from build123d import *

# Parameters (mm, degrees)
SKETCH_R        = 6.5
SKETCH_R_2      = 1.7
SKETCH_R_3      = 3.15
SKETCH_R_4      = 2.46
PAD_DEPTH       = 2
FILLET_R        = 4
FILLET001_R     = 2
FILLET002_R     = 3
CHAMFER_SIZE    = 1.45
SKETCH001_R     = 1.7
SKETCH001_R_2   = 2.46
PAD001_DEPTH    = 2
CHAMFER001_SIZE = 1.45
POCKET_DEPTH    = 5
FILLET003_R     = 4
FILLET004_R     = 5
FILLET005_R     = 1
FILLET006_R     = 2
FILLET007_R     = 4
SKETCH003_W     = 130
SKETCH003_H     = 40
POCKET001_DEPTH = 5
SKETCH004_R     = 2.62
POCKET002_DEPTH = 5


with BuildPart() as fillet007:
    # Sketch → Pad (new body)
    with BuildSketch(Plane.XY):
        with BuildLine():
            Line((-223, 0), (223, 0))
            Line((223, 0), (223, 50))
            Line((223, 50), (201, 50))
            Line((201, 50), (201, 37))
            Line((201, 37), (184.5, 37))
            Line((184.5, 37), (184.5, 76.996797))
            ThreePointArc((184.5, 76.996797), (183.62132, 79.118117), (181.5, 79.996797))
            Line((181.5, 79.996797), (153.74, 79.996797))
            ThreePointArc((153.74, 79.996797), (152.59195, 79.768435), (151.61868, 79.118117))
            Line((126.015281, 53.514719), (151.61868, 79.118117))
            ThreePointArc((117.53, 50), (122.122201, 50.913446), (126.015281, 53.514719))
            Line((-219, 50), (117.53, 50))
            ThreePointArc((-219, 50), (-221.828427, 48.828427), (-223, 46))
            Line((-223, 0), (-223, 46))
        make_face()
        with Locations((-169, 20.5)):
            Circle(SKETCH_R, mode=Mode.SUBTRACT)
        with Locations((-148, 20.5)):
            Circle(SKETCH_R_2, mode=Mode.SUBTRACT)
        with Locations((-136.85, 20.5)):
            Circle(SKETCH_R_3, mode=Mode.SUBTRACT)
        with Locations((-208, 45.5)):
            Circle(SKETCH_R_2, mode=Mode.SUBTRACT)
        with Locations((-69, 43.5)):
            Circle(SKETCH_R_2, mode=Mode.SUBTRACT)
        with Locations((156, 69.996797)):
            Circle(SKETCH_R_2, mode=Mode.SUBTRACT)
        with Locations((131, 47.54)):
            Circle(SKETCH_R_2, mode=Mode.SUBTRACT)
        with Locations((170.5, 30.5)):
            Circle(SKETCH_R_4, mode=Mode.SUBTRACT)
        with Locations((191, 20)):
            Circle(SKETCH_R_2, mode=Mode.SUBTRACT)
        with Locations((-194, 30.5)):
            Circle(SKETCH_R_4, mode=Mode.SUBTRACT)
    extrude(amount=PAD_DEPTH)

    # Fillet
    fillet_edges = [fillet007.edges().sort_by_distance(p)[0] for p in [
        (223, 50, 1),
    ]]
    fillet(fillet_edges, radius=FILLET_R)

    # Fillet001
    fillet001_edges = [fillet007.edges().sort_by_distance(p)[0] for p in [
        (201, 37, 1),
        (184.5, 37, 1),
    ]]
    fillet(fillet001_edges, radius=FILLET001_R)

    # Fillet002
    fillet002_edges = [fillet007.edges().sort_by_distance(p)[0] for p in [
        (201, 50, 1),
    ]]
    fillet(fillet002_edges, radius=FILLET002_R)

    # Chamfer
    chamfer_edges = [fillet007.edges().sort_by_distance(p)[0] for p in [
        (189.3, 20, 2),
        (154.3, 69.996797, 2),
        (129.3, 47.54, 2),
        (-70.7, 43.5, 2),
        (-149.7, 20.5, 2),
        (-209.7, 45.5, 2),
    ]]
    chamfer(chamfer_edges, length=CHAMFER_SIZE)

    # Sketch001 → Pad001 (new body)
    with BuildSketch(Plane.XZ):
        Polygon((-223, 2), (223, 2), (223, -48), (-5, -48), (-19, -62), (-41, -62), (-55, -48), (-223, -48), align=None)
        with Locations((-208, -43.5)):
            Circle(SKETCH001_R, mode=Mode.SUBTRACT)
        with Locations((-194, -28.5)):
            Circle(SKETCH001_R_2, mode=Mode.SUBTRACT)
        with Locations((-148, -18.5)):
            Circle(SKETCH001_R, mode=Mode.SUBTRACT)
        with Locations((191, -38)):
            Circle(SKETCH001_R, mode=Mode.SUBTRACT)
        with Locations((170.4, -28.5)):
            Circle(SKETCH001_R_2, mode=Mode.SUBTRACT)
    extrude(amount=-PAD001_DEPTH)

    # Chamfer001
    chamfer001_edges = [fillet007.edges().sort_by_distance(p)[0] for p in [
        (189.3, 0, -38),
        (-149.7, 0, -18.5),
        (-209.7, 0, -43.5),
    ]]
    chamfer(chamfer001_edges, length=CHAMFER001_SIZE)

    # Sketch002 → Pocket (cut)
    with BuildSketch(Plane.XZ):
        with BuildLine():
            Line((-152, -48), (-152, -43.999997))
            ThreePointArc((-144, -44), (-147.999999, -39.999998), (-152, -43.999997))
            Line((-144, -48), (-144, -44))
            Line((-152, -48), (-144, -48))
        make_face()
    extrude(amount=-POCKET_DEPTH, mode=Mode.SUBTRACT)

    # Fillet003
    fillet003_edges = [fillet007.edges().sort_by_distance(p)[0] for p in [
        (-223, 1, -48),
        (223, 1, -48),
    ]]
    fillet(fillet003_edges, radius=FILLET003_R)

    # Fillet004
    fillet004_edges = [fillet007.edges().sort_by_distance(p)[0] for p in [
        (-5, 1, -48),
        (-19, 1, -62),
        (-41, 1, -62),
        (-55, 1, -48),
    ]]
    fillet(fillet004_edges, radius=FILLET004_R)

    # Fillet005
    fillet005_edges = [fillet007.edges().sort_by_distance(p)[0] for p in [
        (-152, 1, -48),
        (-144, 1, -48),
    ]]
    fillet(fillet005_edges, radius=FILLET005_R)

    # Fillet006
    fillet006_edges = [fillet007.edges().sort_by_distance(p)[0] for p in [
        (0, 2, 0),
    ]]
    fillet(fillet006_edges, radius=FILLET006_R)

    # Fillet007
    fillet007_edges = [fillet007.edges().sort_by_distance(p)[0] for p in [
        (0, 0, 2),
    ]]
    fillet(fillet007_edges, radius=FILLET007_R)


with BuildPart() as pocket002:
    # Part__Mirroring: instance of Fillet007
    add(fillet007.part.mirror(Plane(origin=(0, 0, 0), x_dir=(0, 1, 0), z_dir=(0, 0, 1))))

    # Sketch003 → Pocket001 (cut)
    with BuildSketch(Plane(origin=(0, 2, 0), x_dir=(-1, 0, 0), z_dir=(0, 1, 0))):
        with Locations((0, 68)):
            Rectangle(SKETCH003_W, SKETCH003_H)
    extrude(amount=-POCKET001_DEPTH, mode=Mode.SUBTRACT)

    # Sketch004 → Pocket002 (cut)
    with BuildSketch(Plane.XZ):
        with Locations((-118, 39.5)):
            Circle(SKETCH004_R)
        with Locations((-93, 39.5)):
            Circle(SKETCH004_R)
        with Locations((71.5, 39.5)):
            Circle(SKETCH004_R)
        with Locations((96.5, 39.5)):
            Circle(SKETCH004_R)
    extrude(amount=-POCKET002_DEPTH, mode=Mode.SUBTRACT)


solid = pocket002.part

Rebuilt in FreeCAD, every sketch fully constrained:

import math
import FreeCAD as App
import Part
import Sketcher

V = App.Vector
Q = App.Units.Quantity


def edges_at(feature, points):
    """Names of the edges that pass closest to the given points."""
    edges = feature.Shape.Edges
    near = lambda p: min(range(len(edges)), key=lambda i: edges[i].distToShape(Part.Vertex(*p))[0])
    return sorted({f"Edge{near(p) + 1}" for p in points})


def add_polygon(sketch, points):
    """Adds a closed chain of lines whose ends are joined by coincident constraints."""
    first, n = sketch.GeometryCount, len(points)
    for a, b in zip(points, points[1:] + points[:1]):
        sketch.addGeometry(Part.LineSegment(App.Vector(*a, 0), App.Vector(*b, 0)), False)
    for i in range(n):
        sketch.addConstraint(Sketcher.Constraint("Coincident", first + i, 2, first + (i + 1) % n, 1))

doc = App.newDocument("Part")
params = doc.addObject("Spreadsheet::Sheet", "Params")
for row, (alias, value) in enumerate([
    ("sketch1_diameter", "13 mm"),
    ("sketch1_radius", "3.000001 mm"),
    ("sketch1_radius2", "12.000002 mm"),
    ("sketch1_radius3", "4 mm"),
    ("sketch1_diameter2", "3.4 mm"),
    ("pad1_length", "2 mm"),
    ("fillet_radius", "4 mm"),
    ("fillet2_radius", "2 mm"),
    ("fillet3_radius", "3 mm"),
    ("chamfer_size", "1.45 mm"),
    ("sketch2_diameter", "3.4 mm"),
    ("sketch2_diameter2", "4.92 mm"),
    ("sketch2_width", "446 mm"),
    ("sketch2_width2", "168 mm"),
    ("sketch2_width3", "22 mm"),
    ("pad2_length", "2 mm"),
    ("chamfer2_size", "1.45 mm"),
    ("sketch3_radius", "4 mm"),
    ("sketch3_height", "4 mm"),
    ("pocket1_length", "5 mm"),
    ("fillet4_radius", "4 mm"),
    ("fillet5_radius", "5 mm"),
    ("fillet6_radius", "1 mm"),
    ("fillet7_radius", "2 mm"),
    ("fillet8_radius", "4 mm"),
    ("sketch4_width", "130 mm"),
    ("sketch4_height", "40 mm"),
    ("pocket2_length", "5 mm"),
    ("sketch5_diameter", "5.24 mm"),
    ("pocket3_length", "5 mm"),
], start=1):
    params.set(f"A{row}", alias)
    params.set(f"B{row}", "=" + value)
    params.setAlias(f"B{row}", alias)

body = doc.addObject("PartDesign::Body", "Body")

# Sketch on XY plane
sketch1 = body.newObject("Sketcher::SketchObject", "Sketch")
sketch1.AttachmentSupport = (doc.getObject("XY_Plane"), [""])
sketch1.MapMode = "FlatFace"
sketch1.addGeometry(Part.LineSegment(V(-223, 0, 0), V(223, 0, 0)), False)
sketch1.addGeometry(Part.LineSegment(V(223, 0, 0), V(223, 50, 0)), False)
sketch1.addGeometry(Part.LineSegment(V(223, 50, 0), V(201, 50, 0)), False)
sketch1.addGeometry(Part.LineSegment(V(201, 50, 0), V(201, 37, 0)), False)
sketch1.addGeometry(Part.LineSegment(V(201, 37, 0), V(184.5, 37, 0)), False)
sketch1.addGeometry(Part.LineSegment(V(184.5, 37, 0), V(184.5, 77, 0)), False)
sketch1.addGeometry(Part.ArcOfCircle(Part.Circle(V(181.5, 77, 0), V(0, 0, 1), 3), math.radians(0), math.radians(90)), False)
sketch1.addGeometry(Part.LineSegment(V(181.5, 80, 0), V(153.7, 80, 0)), False)
sketch1.addGeometry(Part.ArcOfCircle(Part.Circle(V(153.7, 77, 0), V(0, 0, 1), 3), math.radians(90), math.radians(135)), False)
sketch1.addGeometry(Part.LineSegment(V(151.6, 79.1, 0), V(126, 53.5, 0)), False)
sketch1.addGeometry(Part.ArcOfCircle(Part.Circle(V(117.5, 62, 0), V(0, 0, 1), 12), math.radians(-90), math.radians(-45)), False)
sketch1.addGeometry(Part.LineSegment(V(117.5, 50, 0), V(-219, 50, 0)), False)
sketch1.addGeometry(Part.ArcOfCircle(Part.Circle(V(-219, 46, 0), V(0, 0, 1), 4), math.radians(90), math.radians(180)), False)
sketch1.addGeometry(Part.LineSegment(V(-223, 46, 0), V(-223, 0, 0)), False)
sketch1.addGeometry(Part.Circle(V(-169, 20.5, 0), V(0, 0, 1), 6.5), False)
sketch1.addGeometry(Part.Circle(V(-148, 20.5, 0), V(0, 0, 1), 1.7), False)
sketch1.addGeometry(Part.Circle(V(-136.8, 20.5, 0), V(0, 0, 1), 3.1), False)
sketch1.addGeometry(Part.Circle(V(-194, 30.5, 0), V(0, 0, 1), 2.5), False)
sketch1.addGeometry(Part.Circle(V(191, 20, 0), V(0, 0, 1), 1.7), False)
sketch1.addGeometry(Part.Circle(V(170.5, 30.5, 0), V(0, 0, 1), 2.5), False)
sketch1.addGeometry(Part.Circle(V(-208, 45.5, 0), V(0, 0, 1), 1.7), False)
sketch1.addGeometry(Part.Circle(V(-69, 43.5, 0), V(0, 0, 1), 1.7), False)
sketch1.addGeometry(Part.Circle(V(131, 47.5, 0), V(0, 0, 1), 1.7), False)
sketch1.addGeometry(Part.Circle(V(156, 70, 0), V(0, 0, 1), 1.7), False)
sketch1.addConstraint(Sketcher.Constraint("Coincident", 0, 2, 1, 1))
sketch1.addConstraint(Sketcher.Constraint("Coincident", 1, 2, 2, 1))
sketch1.addConstraint(Sketcher.Constraint("Coincident", 2, 2, 3, 1))
sketch1.addConstraint(Sketcher.Constraint("Coincident", 3, 2, 4, 1))
sketch1.addConstraint(Sketcher.Constraint("Coincident", 4, 2, 5, 1))
sketch1.addConstraint(Sketcher.Constraint("Tangent", 5, 2, 6, 1))
sketch1.addConstraint(Sketcher.Constraint("Tangent", 6, 2, 7, 1))
sketch1.addConstraint(Sketcher.Constraint("Tangent", 7, 2, 8, 1))
sketch1.addConstraint(Sketcher.Constraint("Tangent", 8, 2, 9, 1))
sketch1.addConstraint(Sketcher.Constraint("Tangent", 9, 2, 10, 2))
sketch1.addConstraint(Sketcher.Constraint("Tangent", 10, 1, 11, 1))
sketch1.addConstraint(Sketcher.Constraint("Tangent", 11, 2, 12, 1))
sketch1.addConstraint(Sketcher.Constraint("Tangent", 12, 2, 13, 1))
sketch1.addConstraint(Sketcher.Constraint("Coincident", 13, 2, 0, 1))
sketch1.addConstraint(Sketcher.Constraint("Horizontal", 0))
sketch1.addConstraint(Sketcher.Constraint("Vertical", 1))
sketch1.addConstraint(Sketcher.Constraint("Horizontal", 2))
sketch1.addConstraint(Sketcher.Constraint("Vertical", 3))
sketch1.addConstraint(Sketcher.Constraint("Horizontal", 4))
sketch1.addConstraint(Sketcher.Constraint("Vertical", 5))
sketch1.addConstraint(Sketcher.Constraint("Horizontal", 7))
sketch1.addConstraint(Sketcher.Constraint("Horizontal", 11))
sketch1.addConstraint(Sketcher.Constraint("Vertical", 13))
sketch1.addConstraint(Sketcher.Constraint("Equal", 15, 18))
sketch1.addConstraint(Sketcher.Constraint("Equal", 17, 19))
sketch1.addConstraint(Sketcher.Constraint("Equal", 18, 20))
sketch1.addConstraint(Sketcher.Constraint("Equal", 20, 21))
sketch1.addConstraint(Sketcher.Constraint("Equal", 21, 22))
sketch1.addConstraint(Sketcher.Constraint("Equal", 22, 23))
sketch1.addConstraint(Sketcher.Constraint("Symmetric", 0, 2, 13, 2, -1, 1))
sketch1.addConstraint(Sketcher.Constraint("Horizontal", 14, 3, 15, 3))
sketch1.addConstraint(Sketcher.Constraint("Horizontal", 15, 3, 16, 3))
sketch1.addConstraint(Sketcher.Constraint("Horizontal", 17, 3, 19, 3))
sketch1.addConstraint(Sketcher.Constraint("Horizontal", 2, 2, 10, 1))
sketch1.addConstraint(Sketcher.Constraint("Diameter", 14, Q("13 mm")))
sketch1.addConstraint(Sketcher.Constraint("Radius", 6, Q("3.000001 mm")))
sketch1.addConstraint(Sketcher.Constraint("Radius", 10, Q("12.000002 mm")))
sketch1.addConstraint(Sketcher.Constraint("Radius", 12, Q("4 mm")))
sketch1.addConstraint(Sketcher.Constraint("Diameter", 15, Q("3.4 mm")))
sketch1.addConstraint(Sketcher.Constraint("Diameter", 16, Q("6.3 mm")))
sketch1.addConstraint(Sketcher.Constraint("Diameter", 17, Q("4.92 mm")))
sketch1.addConstraint(Sketcher.Constraint("DistanceX", 0, 1, 0, 2, Q("446 mm")))
sketch1.addConstraint(Sketcher.Constraint("DistanceX", 2, 2, 2, 1, Q("22 mm")))
sketch1.addConstraint(Sketcher.Constraint("DistanceY", 1, 1, 1, 2, Q("50 mm")))
sketch1.addConstraint(Sketcher.Constraint("DistanceY", 3, 2, 3, 1, Q("13 mm")))
sketch1.addConstraint(Sketcher.Constraint("Angle", 9, Q("-135.000001 deg")))
sketch1.addConstraint(Sketcher.Constraint("DistanceX", 4, 2, 4, 1, Q("16.5 mm")))
sketch1.addConstraint(Sketcher.Constraint("DistanceX", 14, 3, -1, 1, Q("169 mm")))
sketch1.addConstraint(Sketcher.Constraint("DistanceX", 15, 3, -1, 1, Q("148 mm")))
sketch1.addConstraint(Sketcher.Constraint("DistanceX", 17, 3, -1, 1, Q("194 mm")))
sketch1.addConstraint(Sketcher.Constraint("DistanceX", -1, 1, 18, 3, Q("191 mm")))
sketch1.addConstraint(Sketcher.Constraint("DistanceY", -1, 1, 18, 3, Q("20 mm")))
sketch1.addConstraint(Sketcher.Constraint("DistanceX", 20, 3, -1, 1, Q("208 mm")))
sketch1.addConstraint(Sketcher.Constraint("DistanceX", 21, 3, -1, 1, Q("69 mm")))
sketch1.addConstraint(Sketcher.Constraint("DistanceX", -1, 1, 22, 3, Q("131 mm")))
sketch1.addConstraint(Sketcher.Constraint("DistanceX", -1, 1, 23, 3, Q("156 mm")))
sketch1.addConstraint(Sketcher.Constraint("DistanceY", 14, 3, 17, 3, Q("10 mm")))
sketch1.addConstraint(Sketcher.Constraint("DistanceX", 19, 3, 6, 3, Q("10.999999 mm")))
sketch1.addConstraint(Sketcher.Constraint("DistanceY", 17, 3, 20, 3, Q("15 mm")))
sketch1.addConstraint(Sketcher.Constraint("DistanceY", 16, 3, 21, 3, Q("23 mm")))
sketch1.addConstraint(Sketcher.Constraint("DistanceY", 23, 3, 6, 3, Q("6.999999 mm")))
sketch1.addConstraint(Sketcher.Constraint("DistanceX", 7, 2, 7, 1, Q("27.76 mm")))
sketch1.addConstraint(Sketcher.Constraint("DistanceX", 11, 2, 11, 1, Q("336.53 mm")))
sketch1.addConstraint(Sketcher.Constraint("DistanceY", -1, 1, 14, 3, Q("20.5 mm")))
sketch1.addConstraint(Sketcher.Constraint("DistanceX", 16, 3, -1, 1, Q("136.85 mm")))
sketch1.addConstraint(Sketcher.Constraint("DistanceY", -1, 1, 22, 3, Q("47.54 mm")))
sketch1.addConstraint(Sketcher.Constraint("Radius", 8, Q("3.000005 mm")))
sketch1.setExpression("Constraints[34]", "Params.sketch1_diameter")
sketch1.setExpression("Constraints[35]", "Params.sketch1_radius")
sketch1.setExpression("Constraints[36]", "Params.sketch1_radius2")
sketch1.setExpression("Constraints[37]", "Params.sketch1_radius3")
sketch1.setExpression("Constraints[38]", "Params.sketch1_diameter2")
pad1 = body.newObject("PartDesign::Pad", "Pad")
pad1.Profile = sketch1
pad1.setExpression("Length", "Params.pad1_length")
doc.recompute()

fillet = body.newObject("PartDesign::Fillet", "Fillet")
fillet.Base = (pad1, edges_at(pad1, [(223, 50, 1)]))
fillet.setExpression("Radius", "Params.fillet_radius")
doc.recompute()

fillet2 = body.newObject("PartDesign::Fillet", "Fillet001")
fillet2.Base = (fillet, edges_at(fillet, [(201, 37, 1), (184.5, 37, 1)]))
fillet2.setExpression("Radius", "Params.fillet2_radius")
doc.recompute()

fillet3 = body.newObject("PartDesign::Fillet", "Fillet002")
fillet3.Base = (fillet2, edges_at(fillet2, [(201, 50, 1)]))
fillet3.setExpression("Radius", "Params.fillet3_radius")
doc.recompute()

chamfer = body.newObject("PartDesign::Chamfer", "Chamfer")
chamfer.Base = (fillet3, edges_at(fillet3, [
    (189.3, 20, 2),
    (154.3, 69.997, 2),
    (129.3, 47.54, 2),
    (-70.7, 43.5, 2),
    (-149.7, 20.5, 2),
    (-209.7, 45.5, 2),
]))
chamfer.setExpression("Size", "Params.chamfer_size")

# Sketch on XZ plane
sketch2 = body.newObject("Sketcher::SketchObject", "Sketch001")
sketch2.AttachmentSupport = (doc.getObject("XZ_Plane"), [""])
sketch2.MapMode = "FlatFace"
add_polygon(sketch2, [(223, 2), (-223, 2), (-223, -48), (-55, -48), (-41, -62), (-19, -62), (-5, -48), (223, -48)])  # lines 0-7
sketch2.addGeometry(Part.Circle(V(191, -38, 0), V(0, 0, 1), 1.7), False)  # 8
sketch2.addGeometry(Part.Circle(V(-208, -43.5, 0), V(0, 0, 1), 1.7), False)  # 9
sketch2.addGeometry(Part.Circle(V(170.4, -28.5, 0), V(0, 0, 1), 2.5), False)  # 10
sketch2.addGeometry(Part.Circle(V(-194, -28.5, 0), V(0, 0, 1), 2.5), False)  # 11
sketch2.addGeometry(Part.Circle(V(-148, -18.5, 0), V(0, 0, 1), 1.7), False)  # 12
sketch2.addConstraint(Sketcher.Constraint("Horizontal", 0))
sketch2.addConstraint(Sketcher.Constraint("Vertical", 1))
sketch2.addConstraint(Sketcher.Constraint("Horizontal", 2))
sketch2.addConstraint(Sketcher.Constraint("Horizontal", 4))
sketch2.addConstraint(Sketcher.Constraint("Horizontal", 6))
sketch2.addConstraint(Sketcher.Constraint("Vertical", 7))
sketch2.addConstraint(Sketcher.Constraint("Equal", 8, 9))
sketch2.addConstraint(Sketcher.Constraint("Equal", 10, 11))
sketch2.addConstraint(Sketcher.Constraint("Equal", 9, 12))
sketch2.addConstraint(Sketcher.Constraint("Symmetric", 1, 2, 6, 2, -2))
sketch2.addConstraint(Sketcher.Constraint("Perpendicular", 3, 5))
sketch2.addConstraint(Sketcher.Constraint("Horizontal", 10, 3, 11, 3))
sketch2.addConstraint(Sketcher.Constraint("Equal", 3, 5))
sketch2.addConstraint(Sketcher.Constraint("Diameter", 8, Q("3.4 mm")))
sketch2.addConstraint(Sketcher.Constraint("Diameter", 10, Q("4.92 mm")))
sketch2.addConstraint(Sketcher.Constraint("DistanceX", 0, 2, 0, 1, Q("446 mm")))
sketch2.addConstraint(Sketcher.Constraint("DistanceX", 2, 1, 2, 2, Q("168 mm")))
sketch2.addConstraint(Sketcher.Constraint("DistanceX", 4, 1, 4, 2, Q("22 mm")))
sketch2.addConstraint(Sketcher.Constraint("DistanceX", 6, 1, 6, 2, Q("228 mm")))
sketch2.addConstraint(Sketcher.Constraint("DistanceY", 1, 2, 1, 1, Q("50 mm")))
sketch2.addConstraint(Sketcher.Constraint("DistanceX", -1, 1, 8, 3, Q("191 mm")))
sketch2.addConstraint(Sketcher.Constraint("DistanceY", 8, 3, -1, 1, Q("38 mm")))
sketch2.addConstraint(Sketcher.Constraint("DistanceX", 9, 3, -1, 1, Q("208 mm")))
sketch2.addConstraint(Sketcher.Constraint("DistanceX", 11, 3, -1, 1, Q("194 mm")))
sketch2.addConstraint(Sketcher.Constraint("DistanceX", 12, 3, -1, 1, Q("148 mm")))
sketch2.addConstraint(Sketcher.Constraint("DistanceY", -1, 1, 0, 2, Q("2 mm")))
sketch2.addConstraint(Sketcher.Constraint("DistanceY", 9, 3, 10, 3, Q("15 mm")))
sketch2.addConstraint(Sketcher.Constraint("DistanceY", 11, 3, 12, 3, Q("10 mm")))
sketch2.addConstraint(Sketcher.Constraint("DistanceY", 9, 3, -1, 1, Q("43.5 mm")))
sketch2.addConstraint(Sketcher.Constraint("DistanceX", -1, 1, 10, 3, Q("170.4 mm")))
sketch2.setExpression("Constraints[21]", "Params.sketch2_diameter")
sketch2.setExpression("Constraints[22]", "Params.sketch2_diameter2")
sketch2.setExpression("Constraints[23]", "Params.sketch2_width")
sketch2.setExpression("Constraints[24]", "Params.sketch2_width2")
sketch2.setExpression("Constraints[25]", "Params.sketch2_width3")
pad2 = body.newObject("PartDesign::Pad", "Pad001")
pad2.Profile = sketch2
pad2.setExpression("Length", "Params.pad2_length")
pad2.Reversed = True
doc.recompute()

chamfer2 = body.newObject("PartDesign::Chamfer", "Chamfer001")
chamfer2.Base = (pad2, edges_at(pad2, [(189.3, 0, -38), (-149.7, 0, -18.5), (-209.7, 0, -43.5)]))
chamfer2.setExpression("Size", "Params.chamfer2_size")

# Sketch on XZ plane
sketch3 = body.newObject("Sketcher::SketchObject", "Sketch002")
sketch3.AttachmentSupport = (doc.getObject("XZ_Plane"), [""])
sketch3.MapMode = "FlatFace"
sketch3.addGeometry(Part.LineSegment(V(-152, -44, 0), V(-152, -48, 0)), False)
sketch3.addGeometry(Part.LineSegment(V(-152, -48, 0), V(-144, -48, 0)), False)
sketch3.addGeometry(Part.LineSegment(V(-144, -48, 0), V(-144, -44, 0)), False)
sketch3.addGeometry(Part.ArcOfCircle(Part.Circle(V(-148, -44, 0), V(0, 0, 1), 4), math.radians(0), math.radians(180)), False)
sketch3.addConstraint(Sketcher.Constraint("Coincident", 0, 2, 1, 1))
sketch3.addConstraint(Sketcher.Constraint("Coincident", 1, 2, 2, 1))
sketch3.addConstraint(Sketcher.Constraint("Tangent", 2, 2, 3, 1))
sketch3.addConstraint(Sketcher.Constraint("Tangent", 3, 2, 0, 1))
sketch3.addConstraint(Sketcher.Constraint("Vertical", 0))
sketch3.addConstraint(Sketcher.Constraint("Horizontal", 1))
sketch3.addConstraint(Sketcher.Constraint("Vertical", 2))
sketch3.addConstraint(Sketcher.Constraint("Radius", 3, Q("4 mm")))
sketch3.addConstraint(Sketcher.Constraint("DistanceY", 2, 1, 2, 2, Q("4 mm")))
sketch3.addConstraint(Sketcher.Constraint("DistanceX", 3, 3, -1, 1, Q("148 mm")))
sketch3.addConstraint(Sketcher.Constraint("DistanceY", 0, 2, -1, 1, Q("48 mm")))
sketch3.setExpression("Constraints[7]", "Params.sketch3_radius")
sketch3.setExpression("Constraints[8]", "Params.sketch3_height")
pocket1 = body.newObject("PartDesign::Pocket", "Pocket")
pocket1.Profile = sketch3
pocket1.setExpression("Length", "Params.pocket1_length")
doc.recompute()

fillet4 = body.newObject("PartDesign::Fillet", "Fillet003")
fillet4.Base = (pocket1, edges_at(pocket1, [(-223, 1, -48), (223, 1, -48)]))
fillet4.setExpression("Radius", "Params.fillet4_radius")
doc.recompute()

fillet5 = body.newObject("PartDesign::Fillet", "Fillet004")
fillet5.Base = (fillet4, edges_at(fillet4, [
    (-5, 1, -48),
    (-19, 1, -62),
    (-41, 1, -62),
    (-55, 1, -48),
]))
fillet5.setExpression("Radius", "Params.fillet5_radius")
doc.recompute()

fillet6 = body.newObject("PartDesign::Fillet", "Fillet005")
fillet6.Base = (fillet5, edges_at(fillet5, [(-152, 1, -48), (-144, 1, -48)]))
fillet6.setExpression("Radius", "Params.fillet6_radius")
doc.recompute()

fillet7 = body.newObject("PartDesign::Fillet", "Fillet006")
fillet7.Base = (fillet6, edges_at(fillet6, [(0, 2, 0)]))
fillet7.setExpression("Radius", "Params.fillet7_radius")
doc.recompute()

fillet8 = body.newObject("PartDesign::Fillet", "Fillet007")
fillet8.Base = (fillet7, edges_at(fillet7, [(0, 0, 2)]))
fillet8.setExpression("Radius", "Params.fillet8_radius")
body2 = doc.addObject("PartDesign::Body", "Body001")
doc.recompute()

mirroring = doc.addObject("Part::Mirroring", "Mirroring")
mirroring.Source = body
mirroring.Base = V(0, 0, 0)
mirroring.Normal = V(0, 0, 1)
body2.BaseFeature = mirroring
doc.recompute()

# Sketch on XZ plane
sketch4 = body2.newObject("Sketcher::SketchObject", "Sketch003")
sketch4.AttachmentSupport = (doc.getObject("XZ_Plane001"), [""])
sketch4.MapMode = "FlatFace"
sketch4.AttachmentOffset = App.Placement(V(0, 0, -2), App.Rotation())
add_polygon(sketch4, [(65, 88), (65, 48), (-65, 48), (-65, 88)])  # lines 0-3
sketch4.addConstraint(Sketcher.Constraint("Vertical", 0))
sketch4.addConstraint(Sketcher.Constraint("Horizontal", 1))
sketch4.addConstraint(Sketcher.Constraint("Vertical", 2))
sketch4.addConstraint(Sketcher.Constraint("Horizontal", 3))
sketch4.addConstraint(Sketcher.Constraint("DistanceX", 1, 2, 1, 1, Q("130 mm")))
sketch4.addConstraint(Sketcher.Constraint("DistanceY", 0, 2, 0, 1, Q("40 mm")))
sketch4.addConstraint(Sketcher.Constraint("DistanceX", -1, 1, 0, 2, Q("65 mm")))
sketch4.addConstraint(Sketcher.Constraint("DistanceY", -1, 1, 0, 2, Q("48 mm")))
sketch4.setExpression("Constraints[8]", "Params.sketch4_width")
sketch4.setExpression("Constraints[9]", "Params.sketch4_height")
pocket2 = body2.newObject("PartDesign::Pocket", "Pocket001")
pocket2.Profile = sketch4
pocket2.setExpression("Length", "Params.pocket2_length")
pocket2.Reversed = True

# Sketch on XZ plane
sketch5 = body2.newObject("Sketcher::SketchObject", "Sketch004")
sketch5.AttachmentSupport = (doc.getObject("XZ_Plane001"), [""])
sketch5.MapMode = "FlatFace"
sketch5.addGeometry(Part.Circle(V(-118, 39.5, 0), V(0, 0, 1), 2.6), False)
sketch5.addGeometry(Part.Circle(V(-93, 39.5, 0), V(0, 0, 1), 2.6), False)
sketch5.addGeometry(Part.Circle(V(71.5, 39.5, 0), V(0, 0, 1), 2.6), False)
sketch5.addGeometry(Part.Circle(V(96.5, 39.5, 0), V(0, 0, 1), 2.6), False)
sketch5.addConstraint(Sketcher.Constraint("Equal", 0, 1))
sketch5.addConstraint(Sketcher.Constraint("Equal", 1, 2))
sketch5.addConstraint(Sketcher.Constraint("Equal", 2, 3))
sketch5.addConstraint(Sketcher.Constraint("Horizontal", 0, 3, 1, 3))
sketch5.addConstraint(Sketcher.Constraint("Horizontal", 1, 3, 2, 3))
sketch5.addConstraint(Sketcher.Constraint("Horizontal", 2, 3, 3, 3))
sketch5.addConstraint(Sketcher.Constraint("Diameter", 0, Q("5.24 mm")))
sketch5.addConstraint(Sketcher.Constraint("DistanceX", 0, 3, -1, 1, Q("118 mm")))
sketch5.addConstraint(Sketcher.Constraint("DistanceX", 1, 3, -1, 1, Q("93 mm")))
sketch5.addConstraint(Sketcher.Constraint("DistanceX", 2, 3, 3, 3, Q("25 mm")))
sketch5.addConstraint(Sketcher.Constraint("DistanceY", -1, 1, 0, 3, Q("39.5 mm")))
sketch5.addConstraint(Sketcher.Constraint("DistanceX", -1, 1, 2, 3, Q("71.5 mm")))
sketch5.setExpression("Constraints[6]", "Params.sketch5_diameter")
pocket3 = body2.newObject("PartDesign::Pocket", "Pocket002")
pocket3.Profile = sketch5
pocket3.setExpression("Length", "Params.pocket3_length")
body.Visibility = False
mirroring.Visibility = False

doc.recompute()
